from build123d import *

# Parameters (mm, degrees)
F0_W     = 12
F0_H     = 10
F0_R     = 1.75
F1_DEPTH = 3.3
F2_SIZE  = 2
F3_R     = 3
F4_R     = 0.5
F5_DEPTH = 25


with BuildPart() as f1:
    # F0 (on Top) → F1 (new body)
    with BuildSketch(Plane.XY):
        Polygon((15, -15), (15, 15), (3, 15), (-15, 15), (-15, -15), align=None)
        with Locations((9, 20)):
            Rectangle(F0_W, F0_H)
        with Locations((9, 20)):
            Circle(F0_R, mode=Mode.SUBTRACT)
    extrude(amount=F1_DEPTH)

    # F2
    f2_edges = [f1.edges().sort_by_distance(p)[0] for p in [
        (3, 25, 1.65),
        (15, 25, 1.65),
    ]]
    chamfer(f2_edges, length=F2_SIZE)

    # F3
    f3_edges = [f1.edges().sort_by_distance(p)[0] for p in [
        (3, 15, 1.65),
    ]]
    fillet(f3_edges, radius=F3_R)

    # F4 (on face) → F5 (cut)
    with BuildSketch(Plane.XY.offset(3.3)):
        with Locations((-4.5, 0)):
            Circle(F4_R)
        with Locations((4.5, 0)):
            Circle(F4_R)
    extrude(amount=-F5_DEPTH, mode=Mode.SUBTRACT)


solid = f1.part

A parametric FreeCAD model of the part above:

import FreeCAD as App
import Part
import Sketcher
Q = App.Units.Quantity


def edges_at(feature, points):
    """Names of the edges that pass closest to the given points."""
    edges = feature.Shape.Edges
    near = lambda p: min(range(len(edges)), key=lambda i: edges[i].distToShape(Part.Vertex(*p))[0])
    return sorted({f"Edge{near(p) + 1}" for p in points})


def add_polygon(sketch, points):
    """Adds a closed chain of lines whose ends are joined by coincident constraints."""
    first, n = sketch.GeometryCount, len(points)
    for a, b in zip(points, points[1:] + points[:1]):
        sketch.addGeometry(Part.LineSegment(App.Vector(*a, 0), App.Vector(*b, 0)), False)
    for i in range(n):
        sketch.addConstraint(Sketcher.Constraint("Coincident", first + i, 2, first + (i + 1) % n, 1))

doc = App.newDocument("Part")
body = doc.addObject("PartDesign::Body", "Body")

# Sketch on XY plane
sketch1 = body.newObject("Sketcher::SketchObject", "Sketch")
sketch1.AttachmentSupport = (doc.getObject("XY_Plane"), [""])
sketch1.MapMode = "FlatFace"
add_polygon(sketch1, [(15, -15), (15, 25), (3, 25), (3, 15), (-15, 15), (-15, -15)])  # lines 0-5
sketch1.addGeometry(Part.Circle(App.Vector(9, 20, 0), App.Vector(0, 0, 1), 1.8), False)  # 6
sketch1.addConstraint([
    Sketcher.Constraint("Vertical", 0),
    Sketcher.Constraint("Horizontal", 1),
    Sketcher.Constraint("Vertical", 2),
    Sketcher.Constraint("Horizontal", 3),
    Sketcher.Constraint("Vertical", 4),
    Sketcher.Constraint("Horizontal", 5),
    Sketcher.Constraint("Symmetric", 3, 2, 5, 2, -1, 1),
    Sketcher.Constraint("Equal", 5, 4),
    Sketcher.Constraint("Diameter", 6, Q("3.5 mm")),
    Sketcher.Constraint("DistanceX", 1, 2, 1, 1, Q("12 mm")),
    Sketcher.Constraint("DistanceX", 3, 2, 3, 1, Q("18 mm")),
    Sketcher.Constraint("DistanceY", 0, 1, 0, 2, Q("40 mm")),
    Sketcher.Constraint("DistanceX", -1, 1, 6, 3, Q("9 mm")),
    Sketcher.Constraint("DistanceY", -1, 1, 6, 3, Q("20 mm")),
])
pad1 = body.newObject("PartDesign::Pad", "Pad")
pad1.Profile = sketch1
pad1.Length = 3.3
doc.recompute()

chamfer = body.newObject("PartDesign::Chamfer", "Chamfer")
chamfer.Base = (pad1, edges_at(pad1, [(3, 25, 1.65), (15, 25, 1.65)]))
chamfer.Size = 2
doc.recompute()

fillet = body.newObject("PartDesign::Fillet", "Fillet")
fillet.Base = (chamfer, edges_at(chamfer, [(3, 15, 1.65)]))
fillet.Radius = 3

# Sketch on XY plane
sketch2 = body.newObject("Sketcher::SketchObject", "Sketch001")
sketch2.AttachmentSupport = (doc.getObject("XY_Plane"), [""])
sketch2.MapMode = "FlatFace"
sketch2.AttachmentOffset = App.Placement(App.Vector(0, 0, 3.3), App.Rotation())
sketch2.addGeometry([
    Part.Circle(App.Vector(-4.5, 0, 0), App.Vector(0, 0, 1), 0.5),
    Part.Circle(App.Vector(4.5, 0, 0), App.Vector(0, 0, 1), 0.5),
], False)
sketch2.addConstraint([
    Sketcher.Constraint("Equal", 0, 1),
    Sketcher.Constraint("Symmetric", 0, 3, 1, 3, -1, 1),
    Sketcher.Constraint("PointOnObject", 0, 3, -1),
    Sketcher.Constraint("Diameter", 0, Q("1 mm")),
    Sketcher.Constraint("DistanceX", 0, 3, 1, 3, Q("9 mm")),
])
pocket1 = body.newObject("PartDesign::Pocket", "Pocket")
pocket1.Profile = sketch2
pocket1.Length = 25

doc.recompute()
